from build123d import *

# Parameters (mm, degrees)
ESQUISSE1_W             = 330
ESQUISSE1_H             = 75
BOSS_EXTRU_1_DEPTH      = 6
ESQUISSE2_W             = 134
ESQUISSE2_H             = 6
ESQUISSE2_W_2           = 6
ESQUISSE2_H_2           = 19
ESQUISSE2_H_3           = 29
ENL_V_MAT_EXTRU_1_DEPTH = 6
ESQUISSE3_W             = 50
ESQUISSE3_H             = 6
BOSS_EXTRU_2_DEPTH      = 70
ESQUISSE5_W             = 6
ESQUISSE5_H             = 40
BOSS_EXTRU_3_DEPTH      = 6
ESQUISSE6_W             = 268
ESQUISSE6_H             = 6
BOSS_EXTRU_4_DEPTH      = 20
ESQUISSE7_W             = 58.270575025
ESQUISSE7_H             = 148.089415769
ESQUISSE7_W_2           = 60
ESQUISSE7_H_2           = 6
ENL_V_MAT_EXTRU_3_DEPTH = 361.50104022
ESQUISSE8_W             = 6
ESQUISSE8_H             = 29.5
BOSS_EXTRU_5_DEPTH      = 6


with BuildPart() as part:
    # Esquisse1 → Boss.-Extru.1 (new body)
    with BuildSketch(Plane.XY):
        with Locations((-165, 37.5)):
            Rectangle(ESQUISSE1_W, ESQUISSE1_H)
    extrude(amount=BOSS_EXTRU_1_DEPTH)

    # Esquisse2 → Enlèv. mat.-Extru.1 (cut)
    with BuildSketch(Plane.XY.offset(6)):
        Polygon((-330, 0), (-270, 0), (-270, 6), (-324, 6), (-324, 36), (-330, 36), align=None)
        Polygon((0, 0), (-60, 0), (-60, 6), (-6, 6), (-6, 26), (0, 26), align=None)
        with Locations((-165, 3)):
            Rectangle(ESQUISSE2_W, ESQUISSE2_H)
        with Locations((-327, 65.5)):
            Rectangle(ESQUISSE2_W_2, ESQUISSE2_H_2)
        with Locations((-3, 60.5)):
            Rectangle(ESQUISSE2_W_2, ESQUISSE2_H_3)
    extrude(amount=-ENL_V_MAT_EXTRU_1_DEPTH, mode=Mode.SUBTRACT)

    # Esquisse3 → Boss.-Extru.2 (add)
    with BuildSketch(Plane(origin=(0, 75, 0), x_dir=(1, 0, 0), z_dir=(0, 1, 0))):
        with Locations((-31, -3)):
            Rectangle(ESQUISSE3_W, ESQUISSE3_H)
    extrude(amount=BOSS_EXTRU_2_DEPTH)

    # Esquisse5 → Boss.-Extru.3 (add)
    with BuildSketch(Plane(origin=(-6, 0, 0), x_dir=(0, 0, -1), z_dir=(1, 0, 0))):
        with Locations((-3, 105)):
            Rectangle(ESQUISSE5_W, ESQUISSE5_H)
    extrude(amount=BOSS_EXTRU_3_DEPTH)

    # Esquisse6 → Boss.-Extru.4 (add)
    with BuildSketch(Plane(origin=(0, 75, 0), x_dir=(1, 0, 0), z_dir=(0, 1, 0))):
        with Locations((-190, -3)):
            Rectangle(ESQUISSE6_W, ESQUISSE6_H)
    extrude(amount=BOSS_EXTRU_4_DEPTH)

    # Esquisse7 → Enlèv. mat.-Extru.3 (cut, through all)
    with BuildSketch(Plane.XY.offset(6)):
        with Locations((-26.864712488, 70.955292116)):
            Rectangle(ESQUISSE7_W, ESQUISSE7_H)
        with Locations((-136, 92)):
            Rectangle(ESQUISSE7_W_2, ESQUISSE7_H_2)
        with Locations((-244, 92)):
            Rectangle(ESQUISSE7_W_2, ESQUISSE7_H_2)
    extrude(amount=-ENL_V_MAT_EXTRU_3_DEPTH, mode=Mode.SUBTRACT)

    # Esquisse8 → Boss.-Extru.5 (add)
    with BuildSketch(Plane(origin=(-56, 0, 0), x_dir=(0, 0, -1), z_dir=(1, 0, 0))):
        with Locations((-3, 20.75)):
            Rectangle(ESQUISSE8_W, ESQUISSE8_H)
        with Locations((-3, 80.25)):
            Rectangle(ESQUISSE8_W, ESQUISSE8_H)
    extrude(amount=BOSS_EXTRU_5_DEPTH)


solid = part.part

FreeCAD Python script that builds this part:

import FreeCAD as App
import Part
import Sketcher

V = App.Vector

doc = App.newDocument("Part")
body = doc.addObject("PartDesign::Body", "Body")

# Sketch on XY plane
sketch1 = body.newObject("Sketcher::SketchObject", "Sketch")
sketch1.AttachmentSupport = (doc.getObject("XY_Plane"), [""])
sketch1.MapMode = "FlatFace"
sketch1.addGeometry(Part.LineSegment(V(-330, 75, 0), V(-330, 0, 0)), False)
sketch1.addGeometry(Part.LineSegment(V(-330, 0, 0), V(0, 0, 0)), False)
sketch1.addGeometry(Part.LineSegment(V(0, 0, 0), V(0, 75, 0)), False)
sketch1.addGeometry(Part.LineSegment(V(0, 75, 0), V(-330, 75, 0)), False)
sketch1.addConstraint(Sketcher.Constraint("Coincident", 0, 2, 1, 1))
sketch1.addConstraint(Sketcher.Constraint("Coincident", 1, 2, 2, 1))
sketch1.addConstraint(Sketcher.Constraint("Coincident", 2, 2, 3, 1))
sketch1.addConstraint(Sketcher.Constraint("Coincident", 3, 2, 0, 1))
sketch1.addConstraint(Sketcher.Constraint("Vertical", 0))
sketch1.addConstraint(Sketcher.Constraint("Horizontal", 1))
sketch1.addConstraint(Sketcher.Constraint("Vertical", 2))
sketch1.addConstraint(Sketcher.Constraint("Horizontal", 3))
sketch1.addConstraint(Sketcher.Constraint("Coincident", 1, 2, -1, 1))
sketch1.addConstraint(Sketcher.Constraint("DistanceX", 1, 1, 1, 2, 330.0))
sketch1.addConstraint(Sketcher.Constraint("DistanceY", 0, 2, 0, 1, 75.0))
pad1 = body.newObject("PartDesign::Pad", "Pad")
pad1.Profile = sketch1
pad1.Length = 6

# Sketch on XY plane
sketch2 = body.newObject("Sketcher::SketchObject", "Sketch001")
sketch2.AttachmentSupport = (doc.getObject("XY_Plane"), [""])
sketch2.MapMode = "FlatFace"
sketch2.AttachmentOffset = App.Placement(V(0, 0, 6), App.Rotation())
sketch2.addGeometry(Part.LineSegment(V(-330, 0, 0), V(-270, 0, 0)), False)
sketch2.addGeometry(Part.LineSegment(V(-270, 0, 0), V(-270, 6, 0)), False)
sketch2.addGeometry(Part.LineSegment(V(-270, 6, 0), V(-324, 6, 0)), False)
sketch2.addGeometry(Part.LineSegment(V(-324, 6, 0), V(-324, 36, 0)), False)
sketch2.addGeometry(Part.LineSegment(V(-324, 36, 0), V(-330, 36, 0)), False)
sketch2.addGeometry(Part.LineSegment(V(-330, 36, 0), V(-330, 0, 0)), False)
sketch2.addGeometry(Part.LineSegment(V(-60, 0, 0), V(0, 0, 0)), False)
sketch2.addGeometry(Part.LineSegment(V(0, 0, 0), V(0, 26, 0)), False)
sketch2.addGeometry(Part.LineSegment(V(0, 26, 0), V(-6, 26, 0)), False)
sketch2.addGeometry(Part.LineSegment(V(-6, 26, 0), V(-6, 6, 0)), False)
sketch2.addGeometry(Part.LineSegment(V(-6, 6, 0), V(-60, 6, 0)), False)
sketch2.addGeometry(Part.LineSegment(V(-60, 6, 0), V(-60, 0, 0)), False)
sketch2.addGeometry(Part.LineSegment(V(-232, 6, 0), V(-232, 0, 0)), False)
sketch2.addGeometry(Part.LineSegment(V(-232, 0, 0), V(-98, 0, 0)), False)
sketch2.addGeometry(Part.LineSegment(V(-98, 0, 0), V(-98, 6, 0)), False)
sketch2.addGeometry(Part.LineSegment(V(-98, 6, 0), V(-232, 6, 0)), False)
sketch2.addGeometry(Part.LineSegment(V(-330, 75, 0), V(-330, 56, 0)), False)
sketch2.addGeometry(Part.LineSegment(V(-330, 56, 0), V(-324, 56, 0)), False)
sketch2.addGeometry(Part.LineSegment(V(-324, 56, 0), V(-324, 75, 0)), False)
sketch2.addGeometry(Part.LineSegment(V(-324, 75, 0), V(-330, 75, 0)), False)
sketch2.addGeometry(Part.LineSegment(V(-6, 75, 0), V(-6, 46, 0)), False)
sketch2.addGeometry(Part.LineSegment(V(-6, 46, 0), V(0, 46, 0)), False)
sketch2.addGeometry(Part.LineSegment(V(0, 46, 0), V(0, 75, 0)), False)
sketch2.addGeometry(Part.LineSegment(V(0, 75, 0), V(-6, 75, 0)), False)
sketch2.addConstraint(Sketcher.Constraint("Coincident", 0, 2, 1, 1))
sketch2.addConstraint(Sketcher.Constraint("Coincident", 1, 2, 2, 1))
sketch2.addConstraint(Sketcher.Constraint("Coincident", 2, 2, 3, 1))
sketch2.addConstraint(Sketcher.Constraint("Coincident", 3, 2, 4, 1))
sketch2.addConstraint(Sketcher.Constraint("Coincident", 4, 2, 5, 1))
sketch2.addConstraint(Sketcher.Constraint("Coincident", 5, 2, 0, 1))
sketch2.addConstraint(Sketcher.Constraint("Coincident", 6, 2, 7, 1))
sketch2.addConstraint(Sketcher.Constraint("Coincident", 7, 2, 8, 1))
sketch2.addConstraint(Sketcher.Constraint("Coincident", 8, 2, 9, 1))
sketch2.addConstraint(Sketcher.Constraint("Coincident", 9, 2, 10, 1))
sketch2.addConstraint(Sketcher.Constraint("Coincident", 10, 2, 11, 1))
sketch2.addConstraint(Sketcher.Constraint("Coincident", 11, 2, 6, 1))
sketch2.addConstraint(Sketcher.Constraint("Coincident", 12, 2, 13, 1))
sketch2.addConstraint(Sketcher.Constraint("Coincident", 13, 2, 14, 1))
sketch2.addConstraint(Sketcher.Constraint("Coincident", 14, 2, 15, 1))
sketch2.addConstraint(Sketcher.Constraint("Coincident", 15, 2, 12, 1))
sketch2.addConstraint(Sketcher.Constraint("Coincident", 16, 2, 17, 1))
sketch2.addConstraint(Sketcher.Constraint("Coincident", 17, 2, 18, 1))
sketch2.addConstraint(Sketcher.Constraint("Coincident", 18, 2, 19, 1))
sketch2.addConstraint(Sketcher.Constraint("Coincident", 19, 2, 16, 1))
sketch2.addConstraint(Sketcher.Constraint("Coincident", 20, 2, 21, 1))
sketch2.addConstraint(Sketcher.Constraint("Coincident", 21, 2, 22, 1))
sketch2.addConstraint(Sketcher.Constraint("Coincident", 22, 2, 23, 1))
sketch2.addConstraint(Sketcher.Constraint("Coincident", 23, 2, 20, 1))
sketch2.addConstraint(Sketcher.Constraint("Horizontal", 0))
sketch2.addConstraint(Sketcher.Constraint("Vertical", 1))
sketch2.addConstraint(Sketcher.Constraint("Horizontal", 2))
sketch2.addConstraint(Sketcher.Constraint("Vertical", 3))
sketch2.addConstraint(Sketcher.Constraint("Horizontal", 4))
sketch2.addConstraint(Sketcher.Constraint("Vertical", 5))
sketch2.addConstraint(Sketcher.Constraint("Horizontal", 6))
sketch2.addConstraint(Sketcher.Constraint("Vertical", 7))
sketch2.addConstraint(Sketcher.Constraint("Horizontal", 8))
sketch2.addConstraint(Sketcher.Constraint("Vertical", 9))
sketch2.addConstraint(Sketcher.Constraint("Horizontal", 10))
sketch2.addConstraint(Sketcher.Constraint("Vertical", 11))
sketch2.addConstraint(Sketcher.Constraint("Vertical", 12))
sketch2.addConstraint(Sketcher.Constraint("Horizontal", 13))
sketch2.addConstraint(Sketcher.Constraint("Vertical", 14))
sketch2.addConstraint(Sketcher.Constraint("Horizontal", 15))
sketch2.addConstraint(Sketcher.Constraint("Vertical", 16))
sketch2.addConstraint(Sketcher.Constraint("Horizontal", 17))
sketch2.addConstraint(Sketcher.Constraint("Vertical", 18))
sketch2.addConstraint(Sketcher.Constraint("Horizontal", 19))
sketch2.addConstraint(Sketcher.Constraint("Vertical", 20))
sketch2.addConstraint(Sketcher.Constraint("Horizontal", 21))
sketch2.addConstraint(Sketcher.Constraint("Vertical", 22))
sketch2.addConstraint(Sketcher.Constraint("Horizontal", 23))
sketch2.addConstraint(Sketcher.Constraint("Coincident", 6, 2, -1, 1))
sketch2.addConstraint(Sketcher.Constraint("PointOnObject", 0, 2, -1))
sketch2.addConstraint(Sketcher.Constraint("PointOnObject", 12, 2, -1))
sketch2.addConstraint(Sketcher.Constraint("PointOnObject", 21, 2, -2))
sketch2.addConstraint(Sketcher.Constraint("Horizontal", 2, 2, 9, 2))
sketch2.addConstraint(Sketcher.Constraint("Horizontal", 10, 2, 14, 2))
sketch2.addConstraint(Sketcher.Constraint("Horizontal", 19, 2, 22, 2))
sketch2.addConstraint(Sketcher.Constraint("Vertical", 5, 2, 16, 2))
sketch2.addConstraint(Sketcher.Constraint("Vertical", 3, 2, 17, 2))
sketch2.addConstraint(Sketcher.Constraint("Vertical", 9, 2, 20, 2))
sketch2.addConstraint(Sketcher.Constraint("Equal", 0, 6))
sketch2.addConstraint(Sketcher.Constraint("Equal", 4, 8))
sketch2.addConstraint(Sketcher.Constraint("Equal", 23, 1))
sketch2.addConstraint(Sketcher.Constraint("DistanceX", 0, 1, 0, 2, 60.0))
sketch2.addConstraint(Sketcher.Constraint("DistanceX", 2, 2, 2, 1, 54.0))
sketch2.addConstraint(Sketcher.Constraint("DistanceX", 13, 1, 13, 2, 134.0))
sketch2.addConstraint(Sketcher.Constraint("DistanceY", 3, 1, 3, 2, 30.0))
sketch2.addConstraint(Sketcher.Constraint("DistanceY", 7, 1, 7, 2, 26.0))
sketch2.addConstraint(Sketcher.Constraint("DistanceY", 16, 2, 16, 1, 19.0))
sketch2.addConstraint(Sketcher.Constraint("DistanceY", 20, 2, 20, 1, 29.0))
sketch2.addConstraint(Sketcher.Constraint("DistanceX", 0, 2, -1, 1, 270.0))
sketch2.addConstraint(Sketcher.Constraint("DistanceX", 12, 2, -1, 1, 232.0))
sketch2.addConstraint(Sketcher.Constraint("DistanceY", -1, 1, 16, 2, 56.0))
pocket1 = body.newObject("PartDesign::Pocket", "Pocket")
pocket1.Profile = sketch2
pocket1.Length = 6

# Sketch on XZ plane
sketch3 = body.newObject("Sketcher::SketchObject", "Sketch002")
sketch3.AttachmentSupport = (doc.getObject("XZ_Plane"), [""])
sketch3.MapMode = "FlatFace"
sketch3.AttachmentOffset = App.Placement(V(0, 0, -75), App.Rotation())
sketch3.addGeometry(Part.LineSegment(V(-56, 0, 0), V(-56, 6, 0)), False)
sketch3.addGeometry(Part.LineSegment(V(-56, 6, 0), V(-6, 6, 0)), False)
sketch3.addGeometry(Part.LineSegment(V(-6, 6, 0), V(-6, 0, 0)), False)
sketch3.addGeometry(Part.LineSegment(V(-6, 0, 0), V(-56, 0, 0)), False)
sketch3.addConstraint(Sketcher.Constraint("Coincident", 0, 2, 1, 1))
sketch3.addConstraint(Sketcher.Constraint("Coincident", 1, 2, 2, 1))
sketch3.addConstraint(Sketcher.Constraint("Coincident", 2, 2, 3, 1))
sketch3.addConstraint(Sketcher.Constraint("Coincident", 3, 2, 0, 1))
sketch3.addConstraint(Sketcher.Constraint("Vertical", 0))
sketch3.addConstraint(Sketcher.Constraint("Horizontal", 1))
sketch3.addConstraint(Sketcher.Constraint("Vertical", 2))
sketch3.addConstraint(Sketcher.Constraint("Horizontal", 3))
sketch3.addConstraint(Sketcher.Constraint("PointOnObject", 2, 2, -1))
sketch3.addConstraint(Sketcher.Constraint("DistanceX", 1, 1, 1, 2, 50.0))
sketch3.addConstraint(Sketcher.Constraint("DistanceY", 0, 1, 0, 2, 6.0))
sketch3.addConstraint(Sketcher.Constraint("DistanceX", 0, 2, -1, 1, 56.0))
pad2 = body.newObject("PartDesign::Pad", "Pad001")
pad2.Profile = sketch3
pad2.Length = 70
pad2.Reversed = True

# Sketch on YZ plane
sketch4 = body.newObject("Sketcher::SketchObject", "Sketch003")
sketch4.AttachmentSupport = (doc.getObject("YZ_Plane"), [""])
sketch4.MapMode = "FlatFace"
sketch4.AttachmentOffset = App.Placement(V(0, 0, -6), App.Rotation())
sketch4.addGeometry(Part.LineSegment(V(125, 6, 0), V(85, 6, 0)), False)
sketch4.addGeometry(Part.LineSegment(V(85, 6, 0), V(85, 0, 0)), False)
sketch4.addGeometry(Part.LineSegment(V(85, 0, 0), V(125, 0, 0)), False)
sketch4.addGeometry(Part.LineSegment(V(125, 0, 0), V(125, 6, 0)), False)
sketch4.addConstraint(Sketcher.Constraint("Coincident", 0, 2, 1, 1))
sketch4.addConstraint(Sketcher.Constraint("Coincident", 1, 2, 2, 1))
sketch4.addConstraint(Sketcher.Constraint("Coincident", 2, 2, 3, 1))
sketch4.addConstraint(Sketcher.Constraint("Coincident", 3, 2, 0, 1))
sketch4.addConstraint(Sketcher.Constraint("Horizontal", 0))
sketch4.addConstraint(Sketcher.Constraint("Vertical", 1))
sketch4.addConstraint(Sketcher.Constraint("Horizontal", 2))
sketch4.addConstraint(Sketcher.Constraint("Vertical", 3))
sketch4.addConstraint(Sketcher.Constraint("PointOnObject", 1, 2, -1))
sketch4.addConstraint(Sketcher.Constraint("DistanceX", 0, 2, 0, 1, 40.0))
sketch4.addConstraint(Sketcher.Constraint("DistanceY", 1, 2, 1, 1, 6.0))
sketch4.addConstraint(Sketcher.Constraint("DistanceX", -1, 1, 0, 2, 85.0))
pad3 = body.newObject("PartDesign::Pad", "Pad002")
pad3.Profile = sketch4
pad3.Length = 6

# Sketch on XZ plane
sketch5 = body.newObject("Sketcher::SketchObject", "Sketch004")
sketch5.AttachmentSupport = (doc.getObject("XZ_Plane"), [""])
sketch5.MapMode = "FlatFace"
sketch5.AttachmentOffset = App.Placement(V(0, 0, -75), App.Rotation())
sketch5.addGeometry(Part.LineSegment(V(-324, 0, 0), V(-324, 6, 0)), False)
sketch5.addGeometry(Part.LineSegment(V(-324, 6, 0), V(-56, 6, 0)), False)
sketch5.addGeometry(Part.LineSegment(V(-56, 6, 0), V(-56, 0, 0)), False)
sketch5.addGeometry(Part.LineSegment(V(-56, 0, 0), V(-324, 0, 0)), False)
sketch5.addConstraint(Sketcher.Constraint("Coincident", 0, 2, 1, 1))
sketch5.addConstraint(Sketcher.Constraint("Coincident", 1, 2, 2, 1))
sketch5.addConstraint(Sketcher.Constraint("Coincident", 2, 2, 3, 1))
sketch5.addConstraint(Sketcher.Constraint("Coincident", 3, 2, 0, 1))
sketch5.addConstraint(Sketcher.Constraint("Vertical", 0))
sketch5.addConstraint(Sketcher.Constraint("Horizontal", 1))
sketch5.addConstraint(Sketcher.Constraint("Vertical", 2))
sketch5.addConstraint(Sketcher.Constraint("Horizontal", 3))
sketch5.addConstraint(Sketcher.Constraint("PointOnObject", 2, 2, -1))
sketch5.addConstraint(Sketcher.Constraint("DistanceX", 1, 1, 1, 2, 268.0))
sketch5.addConstraint(Sketcher.Constraint("DistanceY", 0, 1, 0, 2, 6.0))
sketch5.addConstraint(Sketcher.Constraint("DistanceX", 0, 2, -1, 1, 324.0))
pad4 = body.newObject("PartDesign::Pad", "Pad003")
pad4.Profile = sketch5
pad4.Length = 20
pad4.Reversed = True

# Sketch on XY plane
sketch6 = body.newObject("Sketcher::SketchObject", "Sketch005")
sketch6.AttachmentSupport = (doc.getObject("XY_Plane"), [""])
sketch6.MapMode = "FlatFace"
sketch6.AttachmentOffset = App.Placement(V(0, 0, 6), App.Rotation())
sketch6.addGeometry(Part.LineSegment(V(-56, 145, 0), V(-56, -3.089416, 0)), False)
sketch6.addGeometry(Part.LineSegment(V(-56, -3.089416, 0), V(2.270575, -3.089416, 0)), False)
sketch6.addGeometry(Part.LineSegment(V(2.270575, -3.089416, 0), V(2.270575, 145, 0)), False)
sketch6.addGeometry(Part.LineSegment(V(2.270575, 145, 0), V(-56, 145, 0)), False)
sketch6.addGeometry(Part.LineSegment(V(-166, 95, 0), V(-166, 89, 0)), False)
sketch6.addGeometry(Part.LineSegment(V(-166, 89, 0), V(-106, 89, 0)), False)
sketch6.addGeometry(Part.LineSegment(V(-106, 89, 0), V(-106, 95, 0)), False)
sketch6.addGeometry(Part.LineSegment(V(-106, 95, 0), V(-166, 95, 0)), False)
sketch6.addGeometry(Part.LineSegment(V(-274, 95, 0), V(-274, 89, 0)), False)
sketch6.addGeometry(Part.LineSegment(V(-274, 89, 0), V(-214, 89, 0)), False)
sketch6.addGeometry(Part.LineSegment(V(-214, 89, 0), V(-214, 95, 0)), False)
sketch6.addGeometry(Part.LineSegment(V(-214, 95, 0), V(-274, 95, 0)), False)
sketch6.addConstraint(Sketcher.Constraint("Coincident", 0, 2, 1, 1))
sketch6.addConstraint(Sketcher.Constraint("Coincident", 1, 2, 2, 1))
sketch6.addConstraint(Sketcher.Constraint("Coincident", 2, 2, 3, 1))
sketch6.addConstraint(Sketcher.Constraint("Coincident", 3, 2, 0, 1))
sketch6.addConstraint(Sketcher.Constraint("Coincident", 4, 2, 5, 1))
sketch6.addConstraint(Sketcher.Constraint("Coincident", 5, 2, 6, 1))
sketch6.addConstraint(Sketcher.Constraint("Coincident", 6, 2, 7, 1))
sketch6.addConstraint(Sketcher.Constraint("Coincident", 7, 2, 4, 1))
sketch6.addConstraint(Sketcher.Constraint("Coincident", 8, 2, 9, 1))
sketch6.addConstraint(Sketcher.Constraint("Coincident", 9, 2, 10, 1))
sketch6.addConstraint(Sketcher.Constraint("Coincident", 10, 2, 11, 1))
sketch6.addConstraint(Sketcher.Constraint("Coincident", 11, 2, 8, 1))
sketch6.addConstraint(Sketcher.Constraint("Vertical", 0))
sketch6.addConstraint(Sketcher.Constraint("Horizontal", 1))
sketch6.addConstraint(Sketcher.Constraint("Vertical", 2))
sketch6.addConstraint(Sketcher.Constraint("Horizontal", 3))
sketch6.addConstraint(Sketcher.Constraint("Vertical", 4))
sketch6.addConstraint(Sketcher.Constraint("Horizontal", 5))
sketch6.addConstraint(Sketcher.Constraint("Vertical", 6))
sketch6.addConstraint(Sketcher.Constraint("Horizontal", 7))
sketch6.addConstraint(Sketcher.Constraint("Vertical", 8))
sketch6.addConstraint(Sketcher.Constraint("Horizontal", 9))
sketch6.addConstraint(Sketcher.Constraint("Vertical", 10))
sketch6.addConstraint(Sketcher.Constraint("Horizontal", 11))
sketch6.addConstraint(Sketcher.Constraint("Horizontal", 5, 2, 8, 2))
sketch6.addConstraint(Sketcher.Constraint("Horizontal", 7, 2, 10, 2))
sketch6.addConstraint(Sketcher.Constraint("Equal", 7, 9))
sketch6.addConstraint(Sketcher.Constraint("DistanceX", 5, 1, 5, 2, 60.0))
sketch6.addConstraint(Sketcher.Constraint("DistanceY", 4, 2, 4, 1, 6.0))
sketch6.addConstraint(Sketcher.Constraint("DistanceX", 0, 2, -1, 1, 56.0))
sketch6.addConstraint(Sketcher.Constraint("DistanceY", -1, 1, 2, 2, 145.0))
sketch6.addConstraint(Sketcher.Constraint("DistanceX", 4, 2, -1, 1, 166.0))
sketch6.addConstraint(Sketcher.Constraint("DistanceY", -1, 1, 4, 2, 89.0))
sketch6.addConstraint(Sketcher.Constraint("DistanceX", 8, 2, -1, 1, 274.0))
sketch6.addConstraint(Sketcher.Constraint("DistanceX", 1, 1, 1, 2, 58.270575))
sketch6.addConstraint(Sketcher.Constraint("DistanceY", 0, 2, 0, 1, 148.089416))
pocket2 = body.newObject("PartDesign::Pocket", "Pocket001")
pocket2.Profile = sketch6
pocket2.Type = "ThroughAll"

# Sketch on YZ plane
sketch7 = body.newObject("Sketcher::SketchObject", "Sketch006")
sketch7.AttachmentSupport = (doc.getObject("YZ_Plane"), [""])
sketch7.MapMode = "FlatFace"
sketch7.AttachmentOffset = App.Placement(V(0, 0, -56), App.Rotation())
sketch7.addGeometry(Part.LineSegment(V(35.5, 6, 0), V(6, 6, 0)), False)
sketch7.addGeometry(Part.LineSegment(V(6, 6, 0), V(6, 0, 0)), False)
sketch7.addGeometry(Part.LineSegment(V(6, 0, 0), V(35.5, 0, 0)), False)
sketch7.addGeometry(Part.LineSegment(V(35.5, 0, 0), V(35.5, 6, 0)), False)
sketch7.addGeometry(Part.LineSegment(V(95, 6, 0), V(65.5, 6, 0)), False)
sketch7.addGeometry(Part.LineSegment(V(65.5, 6, 0), V(65.5, 0, 0)), False)
sketch7.addGeometry(Part.LineSegment(V(65.5, 0, 0), V(95, 0, 0)), False)
sketch7.addGeometry(Part.LineSegment(V(95, 0, 0), V(95, 6, 0)), False)
sketch7.addConstraint(Sketcher.Constraint("Coincident", 0, 2, 1, 1))
sketch7.addConstraint(Sketcher.Constraint("Coincident", 1, 2, 2, 1))
sketch7.addConstraint(Sketcher.Constraint("Coincident", 2, 2, 3, 1))
sketch7.addConstraint(Sketcher.Constraint("Coincident", 3, 2, 0, 1))
sketch7.addConstraint(Sketcher.Constraint("Coincident", 4, 2, 5, 1))
sketch7.addConstraint(Sketcher.Constraint("Coincident", 5, 2, 6, 1))
sketch7.addConstraint(Sketcher.Constraint("Coincident", 6, 2, 7, 1))
sketch7.addConstraint(Sketcher.Constraint("Coincident", 7, 2, 4, 1))
sketch7.addConstraint(Sketcher.Constraint("Horizontal", 0))
sketch7.addConstraint(Sketcher.Constraint("Vertical", 1))
sketch7.addConstraint(Sketcher.Constraint("Horizontal", 2))
sketch7.addConstraint(Sketcher.Constraint("Vertical", 3))
sketch7.addConstraint(Sketcher.Constraint("Horizontal", 4))
sketch7.addConstraint(Sketcher.Constraint("Vertical", 5))
sketch7.addConstraint(Sketcher.Constraint("Horizontal", 6))
sketch7.addConstraint(Sketcher.Constraint("Vertical", 7))
sketch7.addConstraint(Sketcher.Constraint("PointOnObject", 1, 2, -1))
sketch7.addConstraint(Sketcher.Constraint("PointOnObject", 5, 2, -1))
sketch7.addConstraint(Sketcher.Constraint("Horizontal", 3, 2, 4, 2))
sketch7.addConstraint(Sketcher.Constraint("Equal", 2, 4))
sketch7.addConstraint(Sketcher.Constraint("DistanceY", 1, 2, 1, 1, 6.0))
sketch7.addConstraint(Sketcher.Constraint("DistanceX", 0, 2, 0, 1, 29.5))
sketch7.addConstraint(Sketcher.Constraint("DistanceX", -1, 1, 0, 2, 6.0))
sketch7.addConstraint(Sketcher.Constraint("DistanceX", -1, 1, 6, 2, 95.0))
pad5 = body.newObject("PartDesign::Pad", "Pad004")
pad5.Profile = sketch7
pad5.Length = 6

doc.recompute()
